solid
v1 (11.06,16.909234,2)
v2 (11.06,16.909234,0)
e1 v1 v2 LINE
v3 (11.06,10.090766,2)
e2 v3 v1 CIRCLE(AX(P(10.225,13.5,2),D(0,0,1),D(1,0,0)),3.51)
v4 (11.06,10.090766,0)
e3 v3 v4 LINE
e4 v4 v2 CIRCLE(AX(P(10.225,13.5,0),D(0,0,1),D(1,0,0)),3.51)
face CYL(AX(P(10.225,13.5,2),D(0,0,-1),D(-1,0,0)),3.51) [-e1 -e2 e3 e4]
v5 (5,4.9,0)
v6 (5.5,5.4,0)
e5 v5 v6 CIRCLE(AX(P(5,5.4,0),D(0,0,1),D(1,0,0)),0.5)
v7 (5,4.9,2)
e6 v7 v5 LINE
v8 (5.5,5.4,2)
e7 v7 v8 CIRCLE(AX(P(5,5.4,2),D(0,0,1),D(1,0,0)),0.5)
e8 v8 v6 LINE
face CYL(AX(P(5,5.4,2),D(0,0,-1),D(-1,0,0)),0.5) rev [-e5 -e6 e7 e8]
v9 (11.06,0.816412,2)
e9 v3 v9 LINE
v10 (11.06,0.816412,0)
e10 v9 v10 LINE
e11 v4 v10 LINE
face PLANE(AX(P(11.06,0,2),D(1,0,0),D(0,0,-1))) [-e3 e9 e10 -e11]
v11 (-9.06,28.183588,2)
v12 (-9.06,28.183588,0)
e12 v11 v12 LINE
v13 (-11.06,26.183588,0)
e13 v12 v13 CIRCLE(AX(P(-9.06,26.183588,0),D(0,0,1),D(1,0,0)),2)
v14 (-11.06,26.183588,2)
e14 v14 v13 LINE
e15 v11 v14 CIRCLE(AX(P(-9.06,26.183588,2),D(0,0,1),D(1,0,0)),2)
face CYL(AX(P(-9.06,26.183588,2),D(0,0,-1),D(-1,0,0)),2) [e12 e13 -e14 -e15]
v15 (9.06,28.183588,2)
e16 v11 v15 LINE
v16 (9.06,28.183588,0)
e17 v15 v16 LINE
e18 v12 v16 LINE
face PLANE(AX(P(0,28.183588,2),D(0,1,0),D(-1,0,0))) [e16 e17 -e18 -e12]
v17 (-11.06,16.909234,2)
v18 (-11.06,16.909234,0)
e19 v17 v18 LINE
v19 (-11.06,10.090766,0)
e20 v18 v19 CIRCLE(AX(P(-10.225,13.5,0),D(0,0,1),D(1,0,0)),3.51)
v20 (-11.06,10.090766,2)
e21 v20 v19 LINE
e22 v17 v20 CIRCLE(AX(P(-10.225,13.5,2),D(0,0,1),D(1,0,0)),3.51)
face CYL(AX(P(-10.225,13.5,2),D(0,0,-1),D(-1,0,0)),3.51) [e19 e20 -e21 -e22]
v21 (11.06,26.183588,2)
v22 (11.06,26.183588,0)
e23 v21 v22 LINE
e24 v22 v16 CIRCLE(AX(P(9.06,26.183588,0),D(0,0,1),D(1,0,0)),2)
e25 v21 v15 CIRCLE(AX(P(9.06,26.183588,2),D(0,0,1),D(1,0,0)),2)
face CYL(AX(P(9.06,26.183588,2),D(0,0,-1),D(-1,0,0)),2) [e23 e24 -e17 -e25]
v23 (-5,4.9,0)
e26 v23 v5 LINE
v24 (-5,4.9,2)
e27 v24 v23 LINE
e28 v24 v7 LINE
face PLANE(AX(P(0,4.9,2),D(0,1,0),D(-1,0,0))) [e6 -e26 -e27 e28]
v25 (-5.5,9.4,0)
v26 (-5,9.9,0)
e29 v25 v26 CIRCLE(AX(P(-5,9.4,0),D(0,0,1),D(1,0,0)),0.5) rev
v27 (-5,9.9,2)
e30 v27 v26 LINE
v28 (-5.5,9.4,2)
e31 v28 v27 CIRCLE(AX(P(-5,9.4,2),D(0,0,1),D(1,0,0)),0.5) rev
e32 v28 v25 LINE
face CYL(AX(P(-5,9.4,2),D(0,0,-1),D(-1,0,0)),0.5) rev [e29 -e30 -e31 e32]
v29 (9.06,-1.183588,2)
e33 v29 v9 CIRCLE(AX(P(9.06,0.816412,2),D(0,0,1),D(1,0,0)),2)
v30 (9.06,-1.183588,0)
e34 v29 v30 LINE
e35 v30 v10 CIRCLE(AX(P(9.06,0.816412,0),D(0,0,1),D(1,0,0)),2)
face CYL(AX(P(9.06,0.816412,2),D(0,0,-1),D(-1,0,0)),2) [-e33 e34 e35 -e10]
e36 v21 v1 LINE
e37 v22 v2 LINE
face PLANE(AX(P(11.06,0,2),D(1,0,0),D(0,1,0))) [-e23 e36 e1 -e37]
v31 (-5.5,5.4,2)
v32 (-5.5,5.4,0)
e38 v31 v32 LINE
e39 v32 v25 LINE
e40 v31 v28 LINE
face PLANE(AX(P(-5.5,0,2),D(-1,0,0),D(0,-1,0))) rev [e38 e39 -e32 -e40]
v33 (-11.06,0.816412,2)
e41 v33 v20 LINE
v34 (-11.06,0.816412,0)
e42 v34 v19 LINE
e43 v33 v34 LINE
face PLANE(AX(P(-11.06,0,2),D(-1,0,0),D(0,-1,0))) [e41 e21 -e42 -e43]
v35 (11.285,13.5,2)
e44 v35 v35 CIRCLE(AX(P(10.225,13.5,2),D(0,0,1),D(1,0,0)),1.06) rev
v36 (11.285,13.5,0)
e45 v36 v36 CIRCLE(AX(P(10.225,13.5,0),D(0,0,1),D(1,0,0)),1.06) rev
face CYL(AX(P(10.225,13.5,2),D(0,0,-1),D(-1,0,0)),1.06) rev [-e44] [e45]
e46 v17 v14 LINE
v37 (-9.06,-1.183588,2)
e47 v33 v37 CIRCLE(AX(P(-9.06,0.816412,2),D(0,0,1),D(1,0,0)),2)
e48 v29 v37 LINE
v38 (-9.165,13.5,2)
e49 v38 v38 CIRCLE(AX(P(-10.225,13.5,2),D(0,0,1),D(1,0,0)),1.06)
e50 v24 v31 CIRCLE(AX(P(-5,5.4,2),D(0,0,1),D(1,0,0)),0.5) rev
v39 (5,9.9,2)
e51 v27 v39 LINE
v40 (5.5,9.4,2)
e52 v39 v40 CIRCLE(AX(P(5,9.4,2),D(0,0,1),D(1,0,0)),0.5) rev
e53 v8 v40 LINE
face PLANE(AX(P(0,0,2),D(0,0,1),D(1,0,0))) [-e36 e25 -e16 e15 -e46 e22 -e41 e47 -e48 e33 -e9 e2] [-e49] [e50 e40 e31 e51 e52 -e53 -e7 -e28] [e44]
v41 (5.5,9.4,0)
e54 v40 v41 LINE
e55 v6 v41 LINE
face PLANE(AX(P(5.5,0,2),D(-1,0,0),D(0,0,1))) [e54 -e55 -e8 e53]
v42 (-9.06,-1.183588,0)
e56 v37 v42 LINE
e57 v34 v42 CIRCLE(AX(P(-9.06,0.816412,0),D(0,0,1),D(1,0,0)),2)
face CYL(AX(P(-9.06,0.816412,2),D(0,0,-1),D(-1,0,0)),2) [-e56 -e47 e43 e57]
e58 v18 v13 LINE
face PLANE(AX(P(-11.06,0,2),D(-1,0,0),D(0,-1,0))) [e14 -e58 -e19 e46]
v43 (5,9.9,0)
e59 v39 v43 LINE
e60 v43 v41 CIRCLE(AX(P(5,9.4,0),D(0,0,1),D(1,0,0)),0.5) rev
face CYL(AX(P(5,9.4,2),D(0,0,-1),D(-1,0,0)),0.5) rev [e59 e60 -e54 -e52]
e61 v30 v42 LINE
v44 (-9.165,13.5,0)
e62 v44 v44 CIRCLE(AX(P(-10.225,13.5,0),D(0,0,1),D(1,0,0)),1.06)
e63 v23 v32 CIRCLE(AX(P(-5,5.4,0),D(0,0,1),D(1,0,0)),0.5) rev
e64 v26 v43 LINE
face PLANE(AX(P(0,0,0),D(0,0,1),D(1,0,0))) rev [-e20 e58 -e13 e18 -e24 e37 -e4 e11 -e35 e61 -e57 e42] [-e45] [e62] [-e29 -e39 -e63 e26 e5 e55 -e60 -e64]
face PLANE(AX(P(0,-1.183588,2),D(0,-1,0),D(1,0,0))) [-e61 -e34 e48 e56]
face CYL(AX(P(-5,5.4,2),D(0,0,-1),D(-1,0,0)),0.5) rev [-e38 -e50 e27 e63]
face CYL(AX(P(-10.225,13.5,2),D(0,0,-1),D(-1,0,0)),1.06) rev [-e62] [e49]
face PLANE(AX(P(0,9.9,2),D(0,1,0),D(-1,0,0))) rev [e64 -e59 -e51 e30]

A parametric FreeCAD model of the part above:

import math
import FreeCAD as App
import Part
import Sketcher

V = App.Vector
Q = App.Units.Quantity

doc = App.newDocument("Part")
params = doc.addObject("Spreadsheet::Sheet", "Params")
for row, (alias, value) in enumerate([
    ("sketch1_radius", "2 mm"),
    ("sketch1_radius2", "0.5 mm"),
    ("sketch1_diameter", "2.12 mm"),
    ("sketch1_width", "10 mm"),
    ("sketch1_height", "4 mm"),
    ("pad1_length", "2 mm"),
], start=1):
    params.set(f"A{row}", alias)
    params.set(f"B{row}", "=" + value)
    params.setAlias(f"B{row}", alias)

body = doc.addObject("PartDesign::Body", "Body")

sketch1 = body.newObject("Sketcher::SketchObject", "Sketch")
sketch1.AttachmentSupport = (doc.getObject("XY_Plane"), [""])
sketch1.MapMode = "FlatFace"
sketch1.addGeometry(Part.LineSegment(V(9.06, 28.18, 0), V(-9.06, 28.18, 0)), False)
sketch1.addGeometry(Part.ArcOfCircle(Part.Circle(V(-9.06, 26.18, 0), V(0, 0, 1), 2), math.radians(90), math.radians(180)), False)
sketch1.addGeometry(Part.LineSegment(V(-11.06, 26.18, 0), V(-11.06, 16.91, 0)), False)
sketch1.addGeometry(Part.ArcOfCircle(Part.Circle(V(-10.22, 13.5, 0), V(0, 0, 1), 3.51), math.radians(104), math.radians(256)), False)
sketch1.addGeometry(Part.LineSegment(V(-11.06, 10.09, 0), V(-11.06, 0.82, 0)), False)
sketch1.addGeometry(Part.ArcOfCircle(Part.Circle(V(-9.06, 0.82, 0), V(0, 0, 1), 2), math.radians(-180), math.radians(-90)), False)
sketch1.addGeometry(Part.LineSegment(V(-9.06, -1.18, 0), V(9.06, -1.18, 0)), False)
sketch1.addGeometry(Part.ArcOfCircle(Part.Circle(V(9.06, 0.82, 0), V(0, 0, 1), 2), math.radians(-90), math.radians(0)), False)
sketch1.addGeometry(Part.LineSegment(V(11.06, 0.82, 0), V(11.06, 10.09, 0)), False)
sketch1.addGeometry(Part.ArcOfCircle(Part.Circle(V(10.22, 13.5, 0), V(0, 0, 1), 3.51), math.radians(-76), math.radians(76)), False)
sketch1.addGeometry(Part.LineSegment(V(11.06, 16.91, 0), V(11.06, 26.18, 0)), False)
sketch1.addGeometry(Part.ArcOfCircle(Part.Circle(V(9.06, 26.18, 0), V(0, 0, 1), 2), math.radians(0), math.radians(90)), False)
sketch1.addGeometry(Part.ArcOfCircle(Part.Circle(V(-5, 5.4, 0), V(0, 0, 1), 0.5), math.radians(180), math.radians(270)), False)
sketch1.addGeometry(Part.LineSegment(V(-5.5, 5.4, 0), V(-5.5, 9.4, 0)), False)
sketch1.addGeometry(Part.ArcOfCircle(Part.Circle(V(-5, 9.4, 0), V(0, 0, 1), 0.5), math.radians(90), math.radians(180)), False)
sketch1.addGeometry(Part.LineSegment(V(-5, 9.9, 0), V(5, 9.9, 0)), False)
sketch1.addGeometry(Part.ArcOfCircle(Part.Circle(V(5, 9.4, 0), V(0, 0, 1), 0.5), math.radians(0), math.radians(90)), False)
sketch1.addGeometry(Part.LineSegment(V(5.5, 9.4, 0), V(5.5, 5.4, 0)), False)
sketch1.addGeometry(Part.ArcOfCircle(Part.Circle(V(5, 5.4, 0), V(0, 0, 1), 0.5), math.radians(-90), math.radians(0)), False)
sketch1.addGeometry(Part.LineSegment(V(5, 4.9, 0), V(-5, 4.9, 0)), False)
sketch1.addGeometry(Part.Circle(V(10.22, 13.5, 0), V(0, 0, 1), 1.06), False)
sketch1.addGeometry(Part.Circle(V(-10.22, 13.5, 0), V(0, 0, 1), 1.06), False)
sketch1.addConstraint(Sketcher.Constraint("Tangent", 0, 2, 1, 1))
sketch1.addConstraint(Sketcher.Constraint("Tangent", 1, 2, 2, 1))
sketch1.addConstraint(Sketcher.Constraint("Coincident", 2, 2, 3, 1))
sketch1.addConstraint(Sketcher.Constraint("Coincident", 3, 2, 4, 1))
sketch1.addConstraint(Sketcher.Constraint("Tangent", 4, 2, 5, 1))
sketch1.addConstraint(Sketcher.Constraint("Tangent", 5, 2, 6, 1))
sketch1.addConstraint(Sketcher.Constraint("Tangent", 6, 2, 7, 1))
sketch1.addConstraint(Sketcher.Constraint("Tangent", 7, 2, 8, 1))
sketch1.addConstraint(Sketcher.Constraint("Coincident", 8, 2, 9, 1))
sketch1.addConstraint(Sketcher.Constraint("Coincident", 9, 2, 10, 1))
sketch1.addConstraint(Sketcher.Constraint("Tangent", 10, 2, 11, 1))
sketch1.addConstraint(Sketcher.Constraint("Tangent", 11, 2, 0, 1))
sketch1.addConstraint(Sketcher.Constraint("Tangent", 12, 1, 13, 1))
sketch1.addConstraint(Sketcher.Constraint("Tangent", 13, 2, 14, 2))
sketch1.addConstraint(Sketcher.Constraint("Tangent", 14, 1, 15, 1))
sketch1.addConstraint(Sketcher.Constraint("Tangent", 15, 2, 16, 2))
sketch1.addConstraint(Sketcher.Constraint("Tangent", 16, 1, 17, 1))
sketch1.addConstraint(Sketcher.Constraint("Tangent", 17, 2, 18, 2))
sketch1.addConstraint(Sketcher.Constraint("Tangent", 18, 1, 19, 1))
sketch1.addConstraint(Sketcher.Constraint("Tangent", 19, 2, 12, 2))
sketch1.addConstraint(Sketcher.Constraint("Horizontal", 0))
sketch1.addConstraint(Sketcher.Constraint("Vertical", 2))
sketch1.addConstraint(Sketcher.Constraint("Vertical", 4))
sketch1.addConstraint(Sketcher.Constraint("Horizontal", 6))
sketch1.addConstraint(Sketcher.Constraint("Vertical", 8))
sketch1.addConstraint(Sketcher.Constraint("Vertical", 10))
sketch1.addConstraint(Sketcher.Constraint("Vertical", 13))
sketch1.addConstraint(Sketcher.Constraint("Horizontal", 15))
sketch1.addConstraint(Sketcher.Constraint("Vertical", 17))
sketch1.addConstraint(Sketcher.Constraint("Horizontal", 19))
sketch1.addConstraint(Sketcher.Constraint("Coincident", 20, 3, 9, 3))
sketch1.addConstraint(Sketcher.Constraint("Coincident", 21, 3, 3, 3))
sketch1.addConstraint(Sketcher.Constraint("Equal", 1, 5))
sketch1.addConstraint(Sketcher.Constraint("Equal", 5, 7))
sketch1.addConstraint(Sketcher.Constraint("Equal", 3, 9))
sketch1.addConstraint(Sketcher.Constraint("Equal", 7, 11))
sketch1.addConstraint(Sketcher.Constraint("Equal", 12, 14))
sketch1.addConstraint(Sketcher.Constraint("Equal", 14, 16))
sketch1.addConstraint(Sketcher.Constraint("Equal", 16, 18))
sketch1.addConstraint(Sketcher.Constraint("Equal", 20, 21))
sketch1.addConstraint(Sketcher.Constraint("Symmetric", 3, 3, 9, 3, -2))
sketch1.addConstraint(Sketcher.Constraint("Horizontal", 3, 2, 8, 2))
sketch1.addConstraint(Sketcher.Constraint("Horizontal", 2, 2, 9, 2))
sketch1.addConstraint(Sketcher.Constraint("Vertical", 1, 3, 5, 3))
sketch1.addConstraint(Sketcher.Constraint("Equal", 2, 4))
sketch1.addConstraint(Sketcher.Constraint("Radius", 1, Q("2 mm")))
sketch1.addConstraint(Sketcher.Constraint("Radius", 12, Q("0.5 mm")))
sketch1.addConstraint(Sketcher.Constraint("Diameter", 20, Q("2.12 mm")))
sketch1.addConstraint(Sketcher.Constraint("DistanceX", 15, 1, 15, 2, Q("10 mm")))
sketch1.addConstraint(Sketcher.Constraint("DistanceY", 13, 1, 13, 2, Q("4 mm")))
sketch1.addConstraint(Sketcher.Constraint("Radius", 3, Q("3.51 mm")))
sketch1.addConstraint(Sketcher.Constraint("DistanceX", 12, 3, -1, 1, Q("5 mm")))
sketch1.addConstraint(Sketcher.Constraint("DistanceX", 0, 2, 0, 1, Q("18.12 mm")))
sketch1.addConstraint(Sketcher.Constraint("DistanceY", -1, 1, 3, 3, Q("13.5 mm")))
sketch1.addConstraint(Sketcher.Constraint("DistanceY", -1, 1, 12, 3, Q("5.4 mm")))
sketch1.addConstraint(Sketcher.Constraint("DistanceX", 3, 3, 9, 3, Q("20.45 mm")))
sketch1.addConstraint(Sketcher.Constraint("DistanceY", 2, 2, 2, 1, Q("9.274354 mm")))
sketch1.setExpression("Constraints[45]", "Params.sketch1_radius")
sketch1.setExpression("Constraints[46]", "Params.sketch1_radius2")
sketch1.setExpression("Constraints[47]", "Params.sketch1_diameter")
sketch1.setExpression("Constraints[48]", "Params.sketch1_width")
sketch1.setExpression("Constraints[49]", "Params.sketch1_height")
pad1 = body.newObject("PartDesign::Pad", "Pad")
pad1.Profile = sketch1
pad1.setExpression("Length", "Params.pad1_length")

doc.recompute()
